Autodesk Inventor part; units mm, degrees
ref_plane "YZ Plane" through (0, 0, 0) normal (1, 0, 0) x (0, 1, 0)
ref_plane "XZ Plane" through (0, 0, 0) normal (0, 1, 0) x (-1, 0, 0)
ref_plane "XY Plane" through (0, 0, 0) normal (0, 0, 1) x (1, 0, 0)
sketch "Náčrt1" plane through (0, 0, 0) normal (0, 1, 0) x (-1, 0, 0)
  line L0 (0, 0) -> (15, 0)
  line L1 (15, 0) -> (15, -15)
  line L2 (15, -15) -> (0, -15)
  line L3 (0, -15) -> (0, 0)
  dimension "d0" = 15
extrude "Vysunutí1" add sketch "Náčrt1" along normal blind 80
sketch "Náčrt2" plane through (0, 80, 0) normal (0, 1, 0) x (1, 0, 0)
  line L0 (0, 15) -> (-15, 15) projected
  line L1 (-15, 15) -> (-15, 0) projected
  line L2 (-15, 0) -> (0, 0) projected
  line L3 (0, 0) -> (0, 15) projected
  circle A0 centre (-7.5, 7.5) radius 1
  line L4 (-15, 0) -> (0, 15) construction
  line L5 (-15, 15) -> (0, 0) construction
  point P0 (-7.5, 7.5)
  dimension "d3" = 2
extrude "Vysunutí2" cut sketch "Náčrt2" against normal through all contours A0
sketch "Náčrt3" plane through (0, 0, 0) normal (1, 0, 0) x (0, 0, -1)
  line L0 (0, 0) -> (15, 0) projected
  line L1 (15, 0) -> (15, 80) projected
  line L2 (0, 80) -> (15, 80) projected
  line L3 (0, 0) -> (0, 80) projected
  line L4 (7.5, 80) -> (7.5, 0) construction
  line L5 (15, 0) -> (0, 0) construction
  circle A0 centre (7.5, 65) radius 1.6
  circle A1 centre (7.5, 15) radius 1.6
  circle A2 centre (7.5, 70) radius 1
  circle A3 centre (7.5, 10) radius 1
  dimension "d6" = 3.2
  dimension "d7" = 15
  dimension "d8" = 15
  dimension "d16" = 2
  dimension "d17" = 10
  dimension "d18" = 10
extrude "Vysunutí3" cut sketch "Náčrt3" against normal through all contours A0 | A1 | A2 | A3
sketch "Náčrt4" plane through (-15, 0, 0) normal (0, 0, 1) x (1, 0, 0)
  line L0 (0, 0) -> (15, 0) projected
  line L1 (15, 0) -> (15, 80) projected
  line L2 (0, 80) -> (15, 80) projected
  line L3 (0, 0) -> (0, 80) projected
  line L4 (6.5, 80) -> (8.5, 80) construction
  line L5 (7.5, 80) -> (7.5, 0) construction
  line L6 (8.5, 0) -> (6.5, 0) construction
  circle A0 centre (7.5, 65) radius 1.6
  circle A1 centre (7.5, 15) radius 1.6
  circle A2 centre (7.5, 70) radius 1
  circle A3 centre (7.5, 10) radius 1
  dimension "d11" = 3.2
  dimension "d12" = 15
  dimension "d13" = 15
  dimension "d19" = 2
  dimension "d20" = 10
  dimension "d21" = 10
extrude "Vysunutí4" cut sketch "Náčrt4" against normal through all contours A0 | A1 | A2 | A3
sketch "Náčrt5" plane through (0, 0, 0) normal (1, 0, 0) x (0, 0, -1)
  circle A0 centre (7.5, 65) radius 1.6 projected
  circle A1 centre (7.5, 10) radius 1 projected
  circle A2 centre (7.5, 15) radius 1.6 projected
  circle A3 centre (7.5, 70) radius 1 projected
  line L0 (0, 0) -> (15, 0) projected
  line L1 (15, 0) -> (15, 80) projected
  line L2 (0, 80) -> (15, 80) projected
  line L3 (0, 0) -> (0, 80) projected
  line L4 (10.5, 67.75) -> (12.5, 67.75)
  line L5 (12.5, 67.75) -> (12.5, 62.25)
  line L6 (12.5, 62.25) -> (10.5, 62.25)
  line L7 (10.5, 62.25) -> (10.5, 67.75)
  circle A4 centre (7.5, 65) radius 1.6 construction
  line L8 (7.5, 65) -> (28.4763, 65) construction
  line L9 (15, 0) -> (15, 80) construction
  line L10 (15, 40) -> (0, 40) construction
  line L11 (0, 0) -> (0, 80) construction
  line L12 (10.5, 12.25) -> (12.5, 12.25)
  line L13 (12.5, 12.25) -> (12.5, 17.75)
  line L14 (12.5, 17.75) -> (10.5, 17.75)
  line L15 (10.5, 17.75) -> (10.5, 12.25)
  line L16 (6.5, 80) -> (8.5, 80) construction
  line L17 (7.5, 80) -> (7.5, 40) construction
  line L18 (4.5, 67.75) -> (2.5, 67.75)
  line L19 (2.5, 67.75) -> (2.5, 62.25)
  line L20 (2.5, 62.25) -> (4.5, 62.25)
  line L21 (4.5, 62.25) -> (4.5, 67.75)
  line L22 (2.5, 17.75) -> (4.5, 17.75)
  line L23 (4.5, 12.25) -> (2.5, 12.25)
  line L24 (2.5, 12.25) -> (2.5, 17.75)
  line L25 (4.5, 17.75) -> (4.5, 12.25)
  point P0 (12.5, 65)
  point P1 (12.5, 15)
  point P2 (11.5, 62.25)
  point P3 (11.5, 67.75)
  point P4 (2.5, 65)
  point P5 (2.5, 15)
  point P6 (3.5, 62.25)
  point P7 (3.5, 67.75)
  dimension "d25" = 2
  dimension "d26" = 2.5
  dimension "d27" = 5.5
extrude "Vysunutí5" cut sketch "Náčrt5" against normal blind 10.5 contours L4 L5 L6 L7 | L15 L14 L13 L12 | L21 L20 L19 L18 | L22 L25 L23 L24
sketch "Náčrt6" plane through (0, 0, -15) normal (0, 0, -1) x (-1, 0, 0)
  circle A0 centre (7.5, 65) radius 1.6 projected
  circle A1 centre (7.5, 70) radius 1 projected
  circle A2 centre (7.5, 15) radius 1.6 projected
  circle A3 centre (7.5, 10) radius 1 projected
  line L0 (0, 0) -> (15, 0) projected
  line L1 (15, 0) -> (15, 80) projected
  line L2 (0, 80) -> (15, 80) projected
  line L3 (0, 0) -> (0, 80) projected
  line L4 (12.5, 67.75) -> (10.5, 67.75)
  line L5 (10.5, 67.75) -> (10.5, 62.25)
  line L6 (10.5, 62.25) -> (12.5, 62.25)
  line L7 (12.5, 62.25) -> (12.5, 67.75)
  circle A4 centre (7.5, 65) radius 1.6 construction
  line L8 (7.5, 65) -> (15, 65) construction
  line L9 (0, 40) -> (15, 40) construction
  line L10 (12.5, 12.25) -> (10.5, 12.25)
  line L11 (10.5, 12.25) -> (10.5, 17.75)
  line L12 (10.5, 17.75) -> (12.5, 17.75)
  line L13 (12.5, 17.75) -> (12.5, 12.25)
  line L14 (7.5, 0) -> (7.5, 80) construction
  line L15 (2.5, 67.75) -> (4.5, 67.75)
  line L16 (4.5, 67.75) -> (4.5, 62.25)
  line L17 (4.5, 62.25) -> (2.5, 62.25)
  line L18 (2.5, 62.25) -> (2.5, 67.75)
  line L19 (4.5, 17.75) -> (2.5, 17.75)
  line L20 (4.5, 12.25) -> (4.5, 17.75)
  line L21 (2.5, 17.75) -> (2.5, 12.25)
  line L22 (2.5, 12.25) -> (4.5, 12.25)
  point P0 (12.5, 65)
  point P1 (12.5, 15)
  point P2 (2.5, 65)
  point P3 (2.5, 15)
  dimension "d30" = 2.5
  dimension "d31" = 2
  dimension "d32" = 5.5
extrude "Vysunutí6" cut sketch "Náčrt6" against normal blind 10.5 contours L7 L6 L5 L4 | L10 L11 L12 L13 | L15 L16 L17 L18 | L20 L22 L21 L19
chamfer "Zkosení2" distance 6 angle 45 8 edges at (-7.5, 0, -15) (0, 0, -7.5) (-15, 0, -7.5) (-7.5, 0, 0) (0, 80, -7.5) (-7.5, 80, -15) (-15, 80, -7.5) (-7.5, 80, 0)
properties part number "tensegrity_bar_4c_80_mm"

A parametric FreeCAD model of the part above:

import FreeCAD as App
import Part
import Sketcher

V = App.Vector
Q = App.Units.Quantity


def edges_at(feature, points):
    """Names of the edges that pass closest to the given points."""
    edges = feature.Shape.Edges
    near = lambda p: min(range(len(edges)), key=lambda i: edges[i].distToShape(Part.Vertex(*p))[0])
    return sorted({f"Edge{near(p) + 1}" for p in points})


def add_polygon(sketch, points):
    """Adds a closed chain of lines whose ends are joined by coincident constraints."""
    first, n = sketch.GeometryCount, len(points)
    for a, b in zip(points, points[1:] + points[:1]):
        sketch.addGeometry(Part.LineSegment(App.Vector(*a, 0), App.Vector(*b, 0)), False)
    for i in range(n):
        sketch.addConstraint(Sketcher.Constraint("Coincident", first + i, 2, first + (i + 1) % n, 1))

doc = App.newDocument("Part")
params = doc.addObject("Spreadsheet::Sheet", "Params")
for row, (alias, value) in enumerate([
    ("sketch1_width", "15 mm"),
    ("pad1_length", "80 mm"),
    ("sketch2_diameter", "2 mm"),
    ("sketch3_diameter", "2 mm"),
    ("sketch3_diameter2", "3.2 mm"),
    ("sketch4_diameter", "2 mm"),
    ("sketch4_diameter2", "3.2 mm"),
    ("sketch5_height", "2 mm"),
    ("sketch5_width", "5.5 mm"),
    ("pocket4_length", "10.5 mm"),
    ("sketch6_width", "2 mm"),
    ("sketch6_height", "5.5 mm"),
    ("pocket5_length", "10.5 mm"),
    ("chamfer_size", "6 mm"),
], start=1):
    params.set(f"A{row}", alias)
    params.set(f"B{row}", "=" + value)
    params.setAlias(f"B{row}", alias)

body = doc.addObject("PartDesign::Body", "Body")

# Sketch on XZ plane
sketch1 = doc.addObject("Sketcher::SketchObject", "Sketch")
body.addObject(sketch1)
sketch1.AttachmentSupport = (doc.XZ_Plane, [""])
sketch1.MapMode = "FlatFace"
add_polygon(sketch1, [(-15, 0), (0, 0), (0, -15), (-15, -15)])  # lines 0-3
sketch1.addConstraint([
    Sketcher.Constraint("Horizontal", 0),
    Sketcher.Constraint("Vertical", 1),
    Sketcher.Constraint("Horizontal", 2),
    Sketcher.Constraint("Vertical", 3),
    Sketcher.Constraint("Coincident", 0, 2, -1, 1),
    Sketcher.Constraint("Equal", 2, 1),
    Sketcher.Constraint("DistanceX", 0, 1, 0, 2, Q("15 mm")),
])
sketch1.setExpression("Constraints[10]", "Params.sketch1_width")
pad1 = doc.addObject("PartDesign::Pad", "Pad")
body.addObject(pad1)
pad1.Profile = sketch1
pad1.setExpression("Length", "Params.pad1_length")
pad1.Reversed = True

# Sketch on XZ plane
sketch2 = doc.addObject("Sketcher::SketchObject", "Sketch001")
body.addObject(sketch2)
sketch2.AttachmentSupport = (doc.XZ_Plane, [""])
sketch2.MapMode = "FlatFace"
sketch2.AttachmentOffset = App.Placement(V(0, 0, -80), App.Rotation())
sketch2.addGeometry(Part.Circle(V(-7.5, -7.5, 0), V(0, 0, 1), 1), False)
sketch2.addConstraint([
    Sketcher.Constraint("Diameter", 0, Q("2 mm")),
    Sketcher.Constraint("DistanceX", 0, 3, -1, 1, Q("7.5 mm")),
    Sketcher.Constraint("DistanceY", 0, 3, -1, 1, Q("7.5 mm")),
])
sketch2.setExpression("Constraints[0]", "Params.sketch2_diameter")
pocket1 = doc.addObject("PartDesign::Pocket", "Pocket")
body.addObject(pocket1)
pocket1.Profile = sketch2
pocket1.Type = "ThroughAll"
pocket1.Reversed = True

# Sketch on YZ plane
sketch3 = doc.addObject("Sketcher::SketchObject", "Sketch002")
body.addObject(sketch3)
sketch3.AttachmentSupport = (doc.YZ_Plane, [""])
sketch3.MapMode = "FlatFace"
sketch3.addGeometry([
    Part.Circle(V(65, -7.5, 0), V(0, 0, 1), 1.6),
    Part.Circle(V(15, -7.5, 0), V(0, 0, 1), 1.6),
    Part.Circle(V(70, -7.5, 0), V(0, 0, 1), 1),
    Part.Circle(V(10, -7.5, 0), V(0, 0, 1), 1),
], False)
sketch3.addConstraint([
    Sketcher.Constraint("Equal", 0, 1),
    Sketcher.Constraint("Equal", 2, 3),
    Sketcher.Constraint("Horizontal", 0, 3, 1, 3),
    Sketcher.Constraint("Horizontal", 1, 3, 2, 3),
    Sketcher.Constraint("Horizontal", 2, 3, 3, 3),
    Sketcher.Constraint("Diameter", 2, Q("2 mm")),
    Sketcher.Constraint("Diameter", 0, Q("3.2 mm")),
    Sketcher.Constraint("DistanceX", -1, 1, 1, 3, Q("15 mm")),
    Sketcher.Constraint("DistanceX", -1, 1, 3, 3, Q("10 mm")),
    Sketcher.Constraint("DistanceX", -1, 1, 0, 3, Q("65 mm")),
    Sketcher.Constraint("DistanceX", -1, 1, 2, 3, Q("70 mm")),
    Sketcher.Constraint("DistanceY", 0, 3, -1, 1, Q("7.5 mm")),
])
sketch3.setExpression("Constraints[5]", "Params.sketch3_diameter")
sketch3.setExpression("Constraints[6]", "Params.sketch3_diameter2")
pocket2 = doc.addObject("PartDesign::Pocket", "Pocket001")
body.addObject(pocket2)
pocket2.Profile = sketch3
pocket2.Type = "ThroughAll"

# Sketch on XY plane
sketch4 = doc.addObject("Sketcher::SketchObject", "Sketch003")
body.addObject(sketch4)
sketch4.AttachmentSupport = (doc.XY_Plane, [""])
sketch4.MapMode = "FlatFace"
sketch4.addGeometry([
    Part.Circle(V(-7.5, 65, 0), V(0, 0, 1), 1.6),
    Part.Circle(V(-7.5, 15, 0), V(0, 0, 1), 1.6),
    Part.Circle(V(-7.5, 70, 0), V(0, 0, 1), 1),
    Part.Circle(V(-7.5, 10, 0), V(0, 0, 1), 1),
], False)
sketch4.addConstraint([
    Sketcher.Constraint("Equal", 0, 1),
    Sketcher.Constraint("Equal", 2, 3),
    Sketcher.Constraint("Vertical", 0, 3, 1, 3),
    Sketcher.Constraint("Vertical", 1, 3, 2, 3),
    Sketcher.Constraint("Vertical", 2, 3, 3, 3),
    Sketcher.Constraint("Diameter", 2, Q("2 mm")),
    Sketcher.Constraint("Diameter", 0, Q("3.2 mm")),
    Sketcher.Constraint("DistanceY", -1, 1, 1, 3, Q("15 mm")),
    Sketcher.Constraint("DistanceY", -1, 1, 3, 3, Q("10 mm")),
    Sketcher.Constraint("DistanceY", -1, 1, 0, 3, Q("65 mm")),
    Sketcher.Constraint("DistanceY", -1, 1, 2, 3, Q("70 mm")),
    Sketcher.Constraint("DistanceX", 0, 3, -1, 1, Q("7.5 mm")),
])
sketch4.setExpression("Constraints[5]", "Params.sketch4_diameter")
sketch4.setExpression("Constraints[6]", "Params.sketch4_diameter2")
pocket3 = doc.addObject("PartDesign::Pocket", "Pocket002")
body.addObject(pocket3)
pocket3.Profile = sketch4
pocket3.Type = "ThroughAll"

# Sketch on YZ plane
sketch5 = doc.addObject("Sketcher::SketchObject", "Sketch004")
body.addObject(sketch5)
sketch5.AttachmentSupport = (doc.YZ_Plane, [""])
sketch5.MapMode = "FlatFace"
add_polygon(sketch5, [(67.75, -12.5), (67.75, -10.5), (62.25, -10.5), (62.25, -12.5)])  # lines 0-3
add_polygon(sketch5, [(17.75, -10.5), (12.25, -10.5), (12.25, -12.5), (17.75, -12.5)])  # lines 4-7
add_polygon(sketch5, [(62.25, -4.5), (67.75, -4.5), (67.75, -2.5), (62.25, -2.5)])  # lines 8-11
add_polygon(sketch5, [(17.75, -4.5), (17.75, -2.5), (12.25, -2.5), (12.25, -4.5)])  # lines 12-15
sketch5.addConstraint([
    Sketcher.Constraint("Vertical", 0),
    Sketcher.Constraint("Horizontal", 1),
    Sketcher.Constraint("Vertical", 2),
    Sketcher.Constraint("Horizontal", 3),
    Sketcher.Constraint("Horizontal", 4),
    Sketcher.Constraint("Vertical", 5),
    Sketcher.Constraint("Horizontal", 6),
    Sketcher.Constraint("Vertical", 7),
    Sketcher.Constraint("Horizontal", 8),
    Sketcher.Constraint("Vertical", 9),
    Sketcher.Constraint("Horizontal", 10),
    Sketcher.Constraint("Vertical", 11),
    Sketcher.Constraint("Vertical", 12),
    Sketcher.Constraint("Horizontal", 13),
    Sketcher.Constraint("Vertical", 14),
    Sketcher.Constraint("Horizontal", 15),
    Sketcher.Constraint("Horizontal", 1, 2, 4, 2),
    Sketcher.Constraint("Horizontal", 3, 2, 5, 2),
    Sketcher.Constraint("Horizontal", 10, 2, 12, 2),
    Sketcher.Constraint("Horizontal", 11, 2, 14, 2),
    Sketcher.Constraint("Vertical", 3, 2, 8, 2),
    Sketcher.Constraint("Vertical", 2, 2, 10, 2),
    Sketcher.Constraint("Vertical", 7, 2, 12, 2),
    Sketcher.Constraint("Vertical", 5, 2, 13, 2),
    Sketcher.Constraint("Equal", 3, 4),
    Sketcher.Constraint("Equal", 7, 9),
    Sketcher.Constraint("DistanceY", 0, 1, 0, 2, Q("2 mm")),
    Sketcher.Constraint("DistanceX", 1, 2, 1, 1, Q("5.5 mm")),
    Sketcher.Constraint("DistanceY", 9, 2, -1, 1, Q("2.5 mm")),
    Sketcher.Constraint("DistanceX", 4, 2, 1, 2, Q("50 mm")),
    Sketcher.Constraint("DistanceY", 0, 2, 8, 2, Q("6 mm")),
    Sketcher.Constraint("DistanceX", -1, 1, 0, 2, Q("67.75 mm")),
])
sketch5.setExpression("Constraints[42]", "Params.sketch5_height")
sketch5.setExpression("Constraints[43]", "Params.sketch5_width")
pocket4 = doc.addObject("PartDesign::Pocket", "Pocket003")
body.addObject(pocket4)
pocket4.Profile = sketch5
pocket4.setExpression("Length", "Params.pocket4_length")

# Sketch on XY plane
sketch6 = doc.addObject("Sketcher::SketchObject", "Sketch005")
body.addObject(sketch6)
sketch6.AttachmentSupport = (doc.XY_Plane, [""])
sketch6.MapMode = "FlatFace"
sketch6.AttachmentOffset = App.Placement(V(0, 0, -15), App.Rotation())
add_polygon(sketch6, [(-12.5, 62.25), (-12.5, 67.75), (-10.5, 67.75), (-10.5, 62.25)])  # lines 0-3
add_polygon(sketch6, [(-10.5, 12.25), (-12.5, 12.25), (-12.5, 17.75), (-10.5, 17.75)])  # lines 4-7
add_polygon(sketch6, [(-4.5, 67.75), (-2.5, 67.75), (-2.5, 62.25), (-4.5, 62.25)])  # lines 8-11
add_polygon(sketch6, [(-4.5, 12.25), (-4.5, 17.75), (-2.5, 17.75), (-2.5, 12.25)])  # lines 12-15
sketch6.addConstraint([
    Sketcher.Constraint("Vertical", 0),
    Sketcher.Constraint("Horizontal", 1),
    Sketcher.Constraint("Vertical", 2),
    Sketcher.Constraint("Horizontal", 3),
    Sketcher.Constraint("Horizontal", 4),
    Sketcher.Constraint("Vertical", 5),
    Sketcher.Constraint("Horizontal", 6),
    Sketcher.Constraint("Vertical", 7),
    Sketcher.Constraint("Horizontal", 8),
    Sketcher.Constraint("Vertical", 9),
    Sketcher.Constraint("Horizontal", 10),
    Sketcher.Constraint("Vertical", 11),
    Sketcher.Constraint("Vertical", 12),
    Sketcher.Constraint("Horizontal", 13),
    Sketcher.Constraint("Vertical", 14),
    Sketcher.Constraint("Horizontal", 15),
    Sketcher.Constraint("Horizontal", 1, 2, 8, 2),
    Sketcher.Constraint("Horizontal", 3, 2, 9, 2),
    Sketcher.Constraint("Horizontal", 6, 2, 12, 2),
    Sketcher.Constraint("Horizontal", 7, 2, 14, 2),
    Sketcher.Constraint("Vertical", 3, 2, 4, 2),
    Sketcher.Constraint("Vertical", 2, 2, 6, 2),
    Sketcher.Constraint("Vertical", 11, 2, 12, 2),
    Sketcher.Constraint("Vertical", 9, 2, 13, 2),
    Sketcher.Constraint("Equal", 6, 8),
    Sketcher.Constraint("Equal", 2, 5),
    Sketcher.Constraint("DistanceX", 1, 1, 1, 2, Q("2 mm")),
    Sketcher.Constraint("DistanceY", 0, 1, 0, 2, Q("5.5 mm")),
    Sketcher.Constraint("DistanceX", 8, 2, -1, 1, Q("2.5 mm")),
    Sketcher.Constraint("DistanceY", 4, 2, 3, 2, Q("50 mm")),
    Sketcher.Constraint("DistanceX", 1, 2, 8, 2, Q("8 mm")),
    Sketcher.Constraint("DistanceY", -1, 1, 0, 2, Q("67.75 mm")),
])
sketch6.setExpression("Constraints[42]", "Params.sketch6_width")
sketch6.setExpression("Constraints[43]", "Params.sketch6_height")
pocket5 = doc.addObject("PartDesign::Pocket", "Pocket004")
body.addObject(pocket5)
pocket5.Profile = sketch6
pocket5.setExpression("Length", "Params.pocket5_length")
pocket5.Reversed = True
doc.recompute()

chamfer = doc.addObject("PartDesign::Chamfer", "Chamfer")
body.addObject(chamfer)
chamfer.Base = (pocket5, edges_at(pocket5, [
    (-7.5, 0, -15),
    (0, 0, -7.5),
    (-15, 0, -7.5),
    (-7.5, 0, 0),
    (0, 80, -7.5),
    (-7.5, 80, -15),
    (-15, 80, -7.5),
    (-7.5, 80, 0),
]))
chamfer.setExpression("Size", "Params.chamfer_size")

doc.recompute()
